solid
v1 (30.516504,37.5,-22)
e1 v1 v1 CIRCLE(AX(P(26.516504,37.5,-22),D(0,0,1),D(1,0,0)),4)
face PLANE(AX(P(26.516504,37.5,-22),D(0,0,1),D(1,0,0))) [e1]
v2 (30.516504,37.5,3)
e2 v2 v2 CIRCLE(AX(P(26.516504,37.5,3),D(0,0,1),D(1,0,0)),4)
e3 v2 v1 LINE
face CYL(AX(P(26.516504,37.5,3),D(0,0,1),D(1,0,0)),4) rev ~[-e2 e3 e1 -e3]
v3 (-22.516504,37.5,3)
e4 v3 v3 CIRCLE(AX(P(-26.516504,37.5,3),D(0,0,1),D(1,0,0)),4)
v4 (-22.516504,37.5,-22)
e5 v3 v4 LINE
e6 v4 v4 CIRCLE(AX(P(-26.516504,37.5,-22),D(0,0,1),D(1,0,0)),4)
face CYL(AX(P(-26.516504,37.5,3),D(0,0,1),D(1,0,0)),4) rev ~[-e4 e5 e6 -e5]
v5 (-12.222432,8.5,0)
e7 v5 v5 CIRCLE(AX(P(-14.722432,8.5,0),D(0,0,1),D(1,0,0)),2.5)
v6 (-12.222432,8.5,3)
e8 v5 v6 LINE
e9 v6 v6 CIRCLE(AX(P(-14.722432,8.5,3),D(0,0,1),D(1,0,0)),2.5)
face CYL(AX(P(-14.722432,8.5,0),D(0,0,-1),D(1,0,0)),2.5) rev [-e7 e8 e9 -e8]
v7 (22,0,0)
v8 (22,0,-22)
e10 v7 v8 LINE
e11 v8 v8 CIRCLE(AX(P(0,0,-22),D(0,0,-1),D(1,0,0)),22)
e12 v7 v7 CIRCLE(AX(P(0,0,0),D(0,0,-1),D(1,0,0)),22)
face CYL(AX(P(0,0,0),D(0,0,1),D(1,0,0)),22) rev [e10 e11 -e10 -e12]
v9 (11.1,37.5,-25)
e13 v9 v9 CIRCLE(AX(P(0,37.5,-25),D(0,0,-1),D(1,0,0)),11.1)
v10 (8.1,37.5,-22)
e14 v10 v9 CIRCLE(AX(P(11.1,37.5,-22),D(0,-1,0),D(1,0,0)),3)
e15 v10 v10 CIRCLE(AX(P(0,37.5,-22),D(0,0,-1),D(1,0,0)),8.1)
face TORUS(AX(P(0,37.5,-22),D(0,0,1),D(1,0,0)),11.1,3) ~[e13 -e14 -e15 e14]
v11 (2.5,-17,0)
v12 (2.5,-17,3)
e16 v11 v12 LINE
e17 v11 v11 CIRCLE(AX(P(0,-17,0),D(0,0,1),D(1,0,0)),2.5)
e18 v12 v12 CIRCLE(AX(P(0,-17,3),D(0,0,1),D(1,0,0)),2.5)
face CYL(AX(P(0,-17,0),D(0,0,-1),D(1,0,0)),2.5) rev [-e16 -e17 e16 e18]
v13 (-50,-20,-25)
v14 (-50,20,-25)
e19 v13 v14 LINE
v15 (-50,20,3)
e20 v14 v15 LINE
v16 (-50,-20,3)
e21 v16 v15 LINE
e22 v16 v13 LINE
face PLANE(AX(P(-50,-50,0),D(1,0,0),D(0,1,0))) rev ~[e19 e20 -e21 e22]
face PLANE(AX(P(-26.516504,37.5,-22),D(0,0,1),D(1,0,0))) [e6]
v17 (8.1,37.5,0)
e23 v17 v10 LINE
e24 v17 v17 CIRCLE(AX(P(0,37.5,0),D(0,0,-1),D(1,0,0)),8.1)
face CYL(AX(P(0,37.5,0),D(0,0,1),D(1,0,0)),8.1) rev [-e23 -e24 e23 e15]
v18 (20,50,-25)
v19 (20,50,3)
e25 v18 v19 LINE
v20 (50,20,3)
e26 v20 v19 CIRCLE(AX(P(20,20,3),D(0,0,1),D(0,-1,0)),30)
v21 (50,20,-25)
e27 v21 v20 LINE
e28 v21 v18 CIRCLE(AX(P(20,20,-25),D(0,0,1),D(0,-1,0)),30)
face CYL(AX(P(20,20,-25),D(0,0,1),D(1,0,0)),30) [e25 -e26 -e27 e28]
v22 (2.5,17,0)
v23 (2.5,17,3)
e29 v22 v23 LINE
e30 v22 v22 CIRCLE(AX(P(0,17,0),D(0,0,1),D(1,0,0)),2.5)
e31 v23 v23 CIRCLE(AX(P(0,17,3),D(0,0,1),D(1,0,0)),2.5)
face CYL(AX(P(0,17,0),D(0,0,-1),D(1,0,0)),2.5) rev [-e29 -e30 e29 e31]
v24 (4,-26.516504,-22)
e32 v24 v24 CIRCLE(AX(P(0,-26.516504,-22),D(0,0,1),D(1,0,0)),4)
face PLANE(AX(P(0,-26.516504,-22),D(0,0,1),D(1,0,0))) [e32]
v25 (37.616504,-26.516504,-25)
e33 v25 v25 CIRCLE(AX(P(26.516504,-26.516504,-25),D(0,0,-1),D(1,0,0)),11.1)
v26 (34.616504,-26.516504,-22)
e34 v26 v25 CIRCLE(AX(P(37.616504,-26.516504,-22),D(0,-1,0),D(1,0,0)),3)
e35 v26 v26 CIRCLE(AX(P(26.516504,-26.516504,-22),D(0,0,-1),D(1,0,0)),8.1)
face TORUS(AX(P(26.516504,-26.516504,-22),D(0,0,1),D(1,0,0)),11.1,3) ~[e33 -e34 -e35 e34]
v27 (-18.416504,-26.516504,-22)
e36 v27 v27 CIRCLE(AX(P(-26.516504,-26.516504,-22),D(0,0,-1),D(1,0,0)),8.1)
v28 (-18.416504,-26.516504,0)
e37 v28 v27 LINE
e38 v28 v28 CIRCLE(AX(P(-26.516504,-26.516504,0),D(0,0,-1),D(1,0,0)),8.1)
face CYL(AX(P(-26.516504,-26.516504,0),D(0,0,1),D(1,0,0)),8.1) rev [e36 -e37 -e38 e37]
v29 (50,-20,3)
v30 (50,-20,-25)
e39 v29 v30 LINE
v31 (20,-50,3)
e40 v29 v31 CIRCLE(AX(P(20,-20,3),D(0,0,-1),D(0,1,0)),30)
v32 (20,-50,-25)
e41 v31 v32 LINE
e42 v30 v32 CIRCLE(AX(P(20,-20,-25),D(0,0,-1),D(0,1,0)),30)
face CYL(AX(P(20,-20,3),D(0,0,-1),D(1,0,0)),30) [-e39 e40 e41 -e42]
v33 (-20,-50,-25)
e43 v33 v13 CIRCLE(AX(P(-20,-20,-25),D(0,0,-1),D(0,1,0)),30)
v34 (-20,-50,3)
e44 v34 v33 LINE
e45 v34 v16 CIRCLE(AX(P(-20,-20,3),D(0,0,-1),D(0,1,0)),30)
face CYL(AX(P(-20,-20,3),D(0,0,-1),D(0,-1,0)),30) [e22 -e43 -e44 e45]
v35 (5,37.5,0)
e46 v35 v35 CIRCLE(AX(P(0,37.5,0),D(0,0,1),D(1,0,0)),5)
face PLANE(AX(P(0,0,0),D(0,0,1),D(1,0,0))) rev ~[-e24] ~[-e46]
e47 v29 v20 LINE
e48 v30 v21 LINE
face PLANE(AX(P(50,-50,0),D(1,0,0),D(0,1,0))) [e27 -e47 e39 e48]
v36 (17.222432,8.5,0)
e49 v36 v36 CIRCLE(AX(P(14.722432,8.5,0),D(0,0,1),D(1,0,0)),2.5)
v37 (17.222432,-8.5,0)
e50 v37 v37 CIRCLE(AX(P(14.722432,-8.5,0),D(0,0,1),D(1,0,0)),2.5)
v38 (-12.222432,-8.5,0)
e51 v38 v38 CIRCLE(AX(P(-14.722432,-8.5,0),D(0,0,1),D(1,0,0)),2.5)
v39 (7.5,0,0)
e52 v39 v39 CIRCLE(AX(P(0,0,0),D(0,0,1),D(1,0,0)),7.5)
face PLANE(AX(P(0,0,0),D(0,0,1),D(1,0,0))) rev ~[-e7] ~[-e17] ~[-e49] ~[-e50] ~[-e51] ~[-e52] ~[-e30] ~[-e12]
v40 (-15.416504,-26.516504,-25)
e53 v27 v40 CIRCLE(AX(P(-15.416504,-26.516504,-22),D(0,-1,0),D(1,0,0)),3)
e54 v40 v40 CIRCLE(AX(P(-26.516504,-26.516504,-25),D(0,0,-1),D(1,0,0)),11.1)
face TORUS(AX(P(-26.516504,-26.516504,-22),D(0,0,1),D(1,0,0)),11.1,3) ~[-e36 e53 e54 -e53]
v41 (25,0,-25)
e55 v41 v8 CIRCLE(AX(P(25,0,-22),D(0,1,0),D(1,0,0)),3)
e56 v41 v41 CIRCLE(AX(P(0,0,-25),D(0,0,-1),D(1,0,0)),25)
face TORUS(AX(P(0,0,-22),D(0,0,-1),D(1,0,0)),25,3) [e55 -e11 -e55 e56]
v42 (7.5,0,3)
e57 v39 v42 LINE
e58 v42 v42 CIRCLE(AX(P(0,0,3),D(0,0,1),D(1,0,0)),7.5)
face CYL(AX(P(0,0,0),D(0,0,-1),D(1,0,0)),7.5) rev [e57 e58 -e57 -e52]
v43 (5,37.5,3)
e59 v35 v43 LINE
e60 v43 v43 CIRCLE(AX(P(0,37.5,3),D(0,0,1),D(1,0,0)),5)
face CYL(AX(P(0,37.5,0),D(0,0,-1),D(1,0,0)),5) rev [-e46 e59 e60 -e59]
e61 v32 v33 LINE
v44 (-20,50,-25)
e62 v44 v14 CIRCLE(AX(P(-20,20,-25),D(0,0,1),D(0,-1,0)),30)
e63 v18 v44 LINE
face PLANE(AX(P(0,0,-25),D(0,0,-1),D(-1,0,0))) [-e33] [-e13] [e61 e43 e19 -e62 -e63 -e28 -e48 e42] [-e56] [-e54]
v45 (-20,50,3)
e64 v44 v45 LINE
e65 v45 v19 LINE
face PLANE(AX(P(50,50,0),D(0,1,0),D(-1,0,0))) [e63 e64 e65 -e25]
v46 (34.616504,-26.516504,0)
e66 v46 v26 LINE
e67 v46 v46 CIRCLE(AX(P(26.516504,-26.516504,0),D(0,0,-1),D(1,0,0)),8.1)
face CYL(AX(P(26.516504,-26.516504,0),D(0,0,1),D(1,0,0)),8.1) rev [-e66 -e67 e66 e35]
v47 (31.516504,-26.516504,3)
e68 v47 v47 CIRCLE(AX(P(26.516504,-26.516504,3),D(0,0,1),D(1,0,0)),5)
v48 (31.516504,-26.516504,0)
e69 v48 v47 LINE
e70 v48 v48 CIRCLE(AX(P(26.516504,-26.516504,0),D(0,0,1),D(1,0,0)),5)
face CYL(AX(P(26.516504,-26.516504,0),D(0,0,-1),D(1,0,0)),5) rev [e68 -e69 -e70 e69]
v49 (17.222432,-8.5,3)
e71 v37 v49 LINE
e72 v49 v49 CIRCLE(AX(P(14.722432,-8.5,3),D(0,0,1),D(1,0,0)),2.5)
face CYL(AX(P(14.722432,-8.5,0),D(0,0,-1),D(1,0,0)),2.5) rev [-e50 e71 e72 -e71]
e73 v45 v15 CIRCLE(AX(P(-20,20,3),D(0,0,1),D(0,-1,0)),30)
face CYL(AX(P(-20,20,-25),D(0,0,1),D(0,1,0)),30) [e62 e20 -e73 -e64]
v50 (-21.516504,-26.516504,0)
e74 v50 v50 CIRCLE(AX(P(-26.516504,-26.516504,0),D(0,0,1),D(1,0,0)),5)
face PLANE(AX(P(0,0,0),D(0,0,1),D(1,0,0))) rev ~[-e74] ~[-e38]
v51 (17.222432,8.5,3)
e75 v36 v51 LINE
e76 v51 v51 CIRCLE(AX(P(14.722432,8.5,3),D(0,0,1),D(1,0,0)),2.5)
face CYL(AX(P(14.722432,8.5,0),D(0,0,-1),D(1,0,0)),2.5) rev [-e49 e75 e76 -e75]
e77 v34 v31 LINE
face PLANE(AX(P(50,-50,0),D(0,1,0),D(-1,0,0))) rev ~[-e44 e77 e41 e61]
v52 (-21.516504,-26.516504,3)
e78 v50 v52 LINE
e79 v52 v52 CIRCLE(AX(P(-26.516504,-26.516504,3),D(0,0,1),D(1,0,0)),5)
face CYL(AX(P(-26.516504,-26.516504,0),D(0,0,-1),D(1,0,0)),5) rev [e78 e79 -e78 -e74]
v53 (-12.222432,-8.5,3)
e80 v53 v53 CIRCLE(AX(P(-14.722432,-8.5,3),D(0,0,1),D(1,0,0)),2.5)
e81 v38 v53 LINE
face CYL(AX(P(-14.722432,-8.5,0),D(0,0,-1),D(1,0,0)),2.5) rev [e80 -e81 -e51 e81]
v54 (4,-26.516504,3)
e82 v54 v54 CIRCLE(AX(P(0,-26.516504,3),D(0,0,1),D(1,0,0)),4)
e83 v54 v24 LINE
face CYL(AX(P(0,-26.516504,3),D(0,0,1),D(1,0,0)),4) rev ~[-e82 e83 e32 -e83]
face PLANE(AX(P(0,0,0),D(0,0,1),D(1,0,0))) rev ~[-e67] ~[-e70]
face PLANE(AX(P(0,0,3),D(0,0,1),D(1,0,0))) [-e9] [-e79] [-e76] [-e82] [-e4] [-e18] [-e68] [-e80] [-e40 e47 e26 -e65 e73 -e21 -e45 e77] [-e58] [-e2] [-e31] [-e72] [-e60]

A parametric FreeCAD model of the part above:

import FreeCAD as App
import Part
import Sketcher
from FreeCAD import Vector


def edges_at(feature, points):
    """Names of the edges that pass closest to the given points."""
    edges = feature.Shape.Edges
    near = lambda p: min(range(len(edges)), key=lambda i: edges[i].distToShape(Part.Vertex(*p))[0])
    return sorted({f"Edge{near(p) + 1}" for p in points})

doc = App.newDocument("Part")
params = doc.addObject("Spreadsheet::Sheet", "Params")
for row, (alias, value) in enumerate([
    ("sketch1_diameter", "10 mm"),
    ("sketch1_diameter2", "5 mm"),
    ("sketch1_diameter3", "15 mm"),
    ("sketch1_width", "100 mm"),
    ("pad1_length", "3 mm"),
    ("sketch2_diameter", "44 mm"),
    ("sketch2_diameter2", "16.2 mm"),
    ("sketch2_width", "100 mm"),
    ("pad2_length", "25 mm"),
    ("fillet_radius", "3 mm"),
    ("fillet2_radius", "3 mm"),
    ("sketch3_diameter", "8 mm"),
    ("pocket1_length", "25 mm"),
    ("fillet3_radius", "30 mm"),
], start=1):
    params.set(f"A{row}", alias)
    params.set(f"B{row}", "=" + value)
    params.setAlias(f"B{row}", alias)

body = doc.addObject("PartDesign::Body", "Body")

# Sketch on XY plane
sketch1 = doc.addObject("Sketcher::SketchObject", "Sketch")
body.addObject(sketch1)
sketch1.AttachmentSupport = (doc.XY_Plane, [""])
sketch1.MapMode = "FlatFace"
sketch1.addGeometry([
    Part.LineSegment(Vector(-50, 50, 0), Vector(-50, -50, 0)),  # 0
    Part.LineSegment(Vector(-50, -50, 0), Vector(50, -50, 0)),  # 1
    Part.LineSegment(Vector(50, -50, 0), Vector(50, 50, 0)),  # 2
    Part.LineSegment(Vector(50, 50, 0), Vector(-50, 50, 0)),  # 3
    Part.Circle(Vector(-26.516504, -26.516504, 0), Vector(0, 0, 1), 5),  # 4
    Part.Circle(Vector(0, -17, 0), Vector(0, 0, 1), 2.5),  # 5
    Part.Circle(Vector(-14.722432, -8.5, 0), Vector(0, 0, 1), 2.5),  # 6
    Part.Circle(Vector(0, 0, 0), Vector(0, 0, 1), 7.5),  # 7
    Part.Circle(Vector(26.516504, -26.516504, 0), Vector(0, 0, 1), 5),  # 8
    Part.Circle(Vector(14.722432, -8.5, 0), Vector(0, 0, 1), 2.5),  # 9
    Part.Circle(Vector(-14.722432, 8.5, 0), Vector(0, 0, 1), 2.5),  # 10
    Part.Circle(Vector(0, 17, 0), Vector(0, 0, 1), 2.5),  # 11
    Part.Circle(Vector(0, 37.5, 0), Vector(0, 0, 1), 5),  # 12
    Part.Circle(Vector(14.722432, 8.5, 0), Vector(0, 0, 1), 2.5),  # 13
], False)
sketch1.addConstraint([
    Sketcher.Constraint("Coincident", 0, 2, 1, 1),
    Sketcher.Constraint("Coincident", 1, 2, 2, 1),
    Sketcher.Constraint("Coincident", 2, 2, 3, 1),
    Sketcher.Constraint("Coincident", 3, 2, 0, 1),
    Sketcher.Constraint("Vertical", 0),
    Sketcher.Constraint("Horizontal", 1),
    Sketcher.Constraint("Vertical", 2),
    Sketcher.Constraint("Horizontal", 3),
    Sketcher.Constraint("Coincident", 7, 3, -1, 1),
    Sketcher.Constraint("Equal", 5, 6),
    Sketcher.Constraint("Equal", 4, 8),
    Sketcher.Constraint("Equal", 6, 9),
    Sketcher.Constraint("Equal", 9, 10),
    Sketcher.Constraint("Equal", 10, 11),
    Sketcher.Constraint("Equal", 8, 12),
    Sketcher.Constraint("Equal", 11, 13),
    Sketcher.Constraint("Symmetric", 9, 3, 10, 3, -1, 1),
    Sketcher.Constraint("Symmetric", 5, 3, 11, 3, -1, 1),
    Sketcher.Constraint("Symmetric", 6, 3, 13, 3, -1, 1),
    Sketcher.Constraint("Symmetric", 0, 2, 2, 2, -1, 1),
    Sketcher.Constraint("Symmetric", 4, 3, 8, 3, -2),
    Sketcher.Constraint("Symmetric", 6, 3, 9, 3, -2),
    Sketcher.Constraint("PointOnObject", 5, 3, -2),
    Sketcher.Constraint("PointOnObject", 12, 3, -2),
    Sketcher.Constraint("Equal", 3, 0),
    Sketcher.Constraint("Diameter", 4, 10.0),
    Sketcher.Constraint("Diameter", 5, 5.0),
    Sketcher.Constraint("Diameter", 7, 15.0),
    Sketcher.Constraint("DistanceX", 1, 1, 1, 2, 100.0),
    Sketcher.Constraint("DistanceY", 5, 3, -1, 1, 17.0),
    Sketcher.Constraint("DistanceY", 6, 3, 10, 3, 17.0),
    Sketcher.Constraint("DistanceY", 10, 3, 12, 3, 29.0),
    Sketcher.Constraint("DistanceX", 6, 3, -1, 1, 14.722432),
    Sketcher.Constraint("DistanceX", 4, 3, 8, 3, 53.033009),
    Sketcher.Constraint("DistanceY", 4, 3, -1, 1, 26.516504),
])
sketch1.setExpression("Constraints[25]", "Params.sketch1_diameter")
sketch1.setExpression("Constraints[26]", "Params.sketch1_diameter2")
sketch1.setExpression("Constraints[27]", "Params.sketch1_diameter3")
sketch1.setExpression("Constraints[28]", "Params.sketch1_width")
pad1 = doc.addObject("PartDesign::Pad", "Pad")
body.addObject(pad1)
pad1.Profile = sketch1
pad1.setExpression("Length", "Params.pad1_length")

# Sketch on XY plane
sketch2 = doc.addObject("Sketcher::SketchObject", "Sketch001")
body.addObject(sketch2)
sketch2.AttachmentSupport = (doc.XY_Plane, [""])
sketch2.MapMode = "FlatFace"
sketch2.addGeometry([
    Part.LineSegment(Vector(50, 50, 0), Vector(50, -50, 0)),  # 0
    Part.LineSegment(Vector(50, -50, 0), Vector(-50, -50, 0)),  # 1
    Part.LineSegment(Vector(-50, -50, 0), Vector(-50, 50, 0)),  # 2
    Part.LineSegment(Vector(-50, 50, 0), Vector(50, 50, 0)),  # 3
    Part.Circle(Vector(26.516504, -26.516504, 0), Vector(0, 0, 1), 8.1),  # 4
    Part.Circle(Vector(0, 0, 0), Vector(0, 0, 1), 22),  # 5
    Part.Circle(Vector(-26.516504, -26.516504, 0), Vector(0, 0, 1), 8.1),  # 6
    Part.Circle(Vector(0, 37.5, 0), Vector(0, 0, 1), 8.1),  # 7
], False)
sketch2.addConstraint([
    Sketcher.Constraint("Coincident", 0, 2, 1, 1),
    Sketcher.Constraint("Coincident", 1, 2, 2, 1),
    Sketcher.Constraint("Coincident", 2, 2, 3, 1),
    Sketcher.Constraint("Coincident", 3, 2, 0, 1),
    Sketcher.Constraint("Vertical", 0),
    Sketcher.Constraint("Horizontal", 1),
    Sketcher.Constraint("Vertical", 2),
    Sketcher.Constraint("Horizontal", 3),
    Sketcher.Constraint("Coincident", 5, 3, -1, 1),
    Sketcher.Constraint("Equal", 4, 6),
    Sketcher.Constraint("Equal", 6, 7),
    Sketcher.Constraint("Symmetric", 0, 2, 2, 2, -1, 1),
    Sketcher.Constraint("Symmetric", 4, 3, 6, 3, -2),
    Sketcher.Constraint("PointOnObject", 7, 3, -2),
    Sketcher.Constraint("Equal", 3, 0),
    Sketcher.Constraint("Diameter", 5, 44.0),
    Sketcher.Constraint("Diameter", 4, 16.2),
    Sketcher.Constraint("DistanceX", 1, 2, 1, 1, 100.0),
    Sketcher.Constraint("DistanceY", -1, 1, 7, 3, 37.5),
    Sketcher.Constraint("DistanceX", 6, 3, 4, 3, 53.033009),
    Sketcher.Constraint("DistanceY", 4, 3, -1, 1, 26.516504),
])
sketch2.setExpression("Constraints[15]", "Params.sketch2_diameter")
sketch2.setExpression("Constraints[16]", "Params.sketch2_diameter2")
sketch2.setExpression("Constraints[17]", "Params.sketch2_width")
pad2 = doc.addObject("PartDesign::Pad", "Pad001")
body.addObject(pad2)
pad2.Profile = sketch2
pad2.setExpression("Length", "Params.pad2_length")
pad2.Reversed = True
doc.recompute()

fillet = doc.addObject("PartDesign::Fillet", "Fillet")
body.addObject(fillet)
fillet.Base = (pad2, edges_at(pad2, [(-8.1, 37.5, -25), (-34.617, -26.517, -25), (18.417, -26.517, -25)]))
fillet.setExpression("Radius", "Params.fillet_radius")
doc.recompute()

fillet2 = doc.addObject("PartDesign::Fillet", "Fillet001")
body.addObject(fillet2)
fillet2.Base = (fillet, edges_at(fillet, [(-22, 0, -25)]))
fillet2.setExpression("Radius", "Params.fillet2_radius")

# Sketch on XY plane
sketch3 = doc.addObject("Sketcher::SketchObject", "Sketch002")
body.addObject(sketch3)
sketch3.AttachmentSupport = (doc.XY_Plane, [""])
sketch3.MapMode = "FlatFace"
sketch3.AttachmentOffset = App.Placement(Vector(0, 0, 3), App.Rotation())
sketch3.addGeometry([
    Part.Circle(Vector(26.516504, 37.5, 0), Vector(0, 0, 1), 4),
    Part.Circle(Vector(-26.516504, 37.5, 0), Vector(0, 0, 1), 4),
    Part.Circle(Vector(0, -26.516504, 0), Vector(0, 0, 1), 4),
], False)
sketch3.addConstraint([
    Sketcher.Constraint("Equal", 0, 1),
    Sketcher.Constraint("Equal", 1, 2),
    Sketcher.Constraint("Symmetric", 0, 3, 1, 3, -2),
    Sketcher.Constraint("PointOnObject", 2, 3, -2),
    Sketcher.Constraint("Diameter", 0, 8.0),
    Sketcher.Constraint("DistanceY", -1, 1, 0, 3, 37.5),
    Sketcher.Constraint("DistanceX", 1, 3, 0, 3, 53.033009),
    Sketcher.Constraint("DistanceY", 2, 3, -1, 1, 26.516504),
])
sketch3.setExpression("Constraints[4]", "Params.sketch3_diameter")
pocket1 = doc.addObject("PartDesign::Pocket", "Pocket")
body.addObject(pocket1)
pocket1.Profile = sketch3
pocket1.setExpression("Length", "Params.pocket1_length")
doc.recompute()

fillet3 = doc.addObject("PartDesign::Fillet", "Fillet002")
body.addObject(fillet3)
fillet3.Base = (pocket1, edges_at(pocket1, [
    (-50, 50, -11),
    (50, 50, -11),
    (50, -50, -11),
    (-50, -50, -11),
]))
fillet3.setExpression("Radius", "Params.fillet3_radius")

doc.recompute()
